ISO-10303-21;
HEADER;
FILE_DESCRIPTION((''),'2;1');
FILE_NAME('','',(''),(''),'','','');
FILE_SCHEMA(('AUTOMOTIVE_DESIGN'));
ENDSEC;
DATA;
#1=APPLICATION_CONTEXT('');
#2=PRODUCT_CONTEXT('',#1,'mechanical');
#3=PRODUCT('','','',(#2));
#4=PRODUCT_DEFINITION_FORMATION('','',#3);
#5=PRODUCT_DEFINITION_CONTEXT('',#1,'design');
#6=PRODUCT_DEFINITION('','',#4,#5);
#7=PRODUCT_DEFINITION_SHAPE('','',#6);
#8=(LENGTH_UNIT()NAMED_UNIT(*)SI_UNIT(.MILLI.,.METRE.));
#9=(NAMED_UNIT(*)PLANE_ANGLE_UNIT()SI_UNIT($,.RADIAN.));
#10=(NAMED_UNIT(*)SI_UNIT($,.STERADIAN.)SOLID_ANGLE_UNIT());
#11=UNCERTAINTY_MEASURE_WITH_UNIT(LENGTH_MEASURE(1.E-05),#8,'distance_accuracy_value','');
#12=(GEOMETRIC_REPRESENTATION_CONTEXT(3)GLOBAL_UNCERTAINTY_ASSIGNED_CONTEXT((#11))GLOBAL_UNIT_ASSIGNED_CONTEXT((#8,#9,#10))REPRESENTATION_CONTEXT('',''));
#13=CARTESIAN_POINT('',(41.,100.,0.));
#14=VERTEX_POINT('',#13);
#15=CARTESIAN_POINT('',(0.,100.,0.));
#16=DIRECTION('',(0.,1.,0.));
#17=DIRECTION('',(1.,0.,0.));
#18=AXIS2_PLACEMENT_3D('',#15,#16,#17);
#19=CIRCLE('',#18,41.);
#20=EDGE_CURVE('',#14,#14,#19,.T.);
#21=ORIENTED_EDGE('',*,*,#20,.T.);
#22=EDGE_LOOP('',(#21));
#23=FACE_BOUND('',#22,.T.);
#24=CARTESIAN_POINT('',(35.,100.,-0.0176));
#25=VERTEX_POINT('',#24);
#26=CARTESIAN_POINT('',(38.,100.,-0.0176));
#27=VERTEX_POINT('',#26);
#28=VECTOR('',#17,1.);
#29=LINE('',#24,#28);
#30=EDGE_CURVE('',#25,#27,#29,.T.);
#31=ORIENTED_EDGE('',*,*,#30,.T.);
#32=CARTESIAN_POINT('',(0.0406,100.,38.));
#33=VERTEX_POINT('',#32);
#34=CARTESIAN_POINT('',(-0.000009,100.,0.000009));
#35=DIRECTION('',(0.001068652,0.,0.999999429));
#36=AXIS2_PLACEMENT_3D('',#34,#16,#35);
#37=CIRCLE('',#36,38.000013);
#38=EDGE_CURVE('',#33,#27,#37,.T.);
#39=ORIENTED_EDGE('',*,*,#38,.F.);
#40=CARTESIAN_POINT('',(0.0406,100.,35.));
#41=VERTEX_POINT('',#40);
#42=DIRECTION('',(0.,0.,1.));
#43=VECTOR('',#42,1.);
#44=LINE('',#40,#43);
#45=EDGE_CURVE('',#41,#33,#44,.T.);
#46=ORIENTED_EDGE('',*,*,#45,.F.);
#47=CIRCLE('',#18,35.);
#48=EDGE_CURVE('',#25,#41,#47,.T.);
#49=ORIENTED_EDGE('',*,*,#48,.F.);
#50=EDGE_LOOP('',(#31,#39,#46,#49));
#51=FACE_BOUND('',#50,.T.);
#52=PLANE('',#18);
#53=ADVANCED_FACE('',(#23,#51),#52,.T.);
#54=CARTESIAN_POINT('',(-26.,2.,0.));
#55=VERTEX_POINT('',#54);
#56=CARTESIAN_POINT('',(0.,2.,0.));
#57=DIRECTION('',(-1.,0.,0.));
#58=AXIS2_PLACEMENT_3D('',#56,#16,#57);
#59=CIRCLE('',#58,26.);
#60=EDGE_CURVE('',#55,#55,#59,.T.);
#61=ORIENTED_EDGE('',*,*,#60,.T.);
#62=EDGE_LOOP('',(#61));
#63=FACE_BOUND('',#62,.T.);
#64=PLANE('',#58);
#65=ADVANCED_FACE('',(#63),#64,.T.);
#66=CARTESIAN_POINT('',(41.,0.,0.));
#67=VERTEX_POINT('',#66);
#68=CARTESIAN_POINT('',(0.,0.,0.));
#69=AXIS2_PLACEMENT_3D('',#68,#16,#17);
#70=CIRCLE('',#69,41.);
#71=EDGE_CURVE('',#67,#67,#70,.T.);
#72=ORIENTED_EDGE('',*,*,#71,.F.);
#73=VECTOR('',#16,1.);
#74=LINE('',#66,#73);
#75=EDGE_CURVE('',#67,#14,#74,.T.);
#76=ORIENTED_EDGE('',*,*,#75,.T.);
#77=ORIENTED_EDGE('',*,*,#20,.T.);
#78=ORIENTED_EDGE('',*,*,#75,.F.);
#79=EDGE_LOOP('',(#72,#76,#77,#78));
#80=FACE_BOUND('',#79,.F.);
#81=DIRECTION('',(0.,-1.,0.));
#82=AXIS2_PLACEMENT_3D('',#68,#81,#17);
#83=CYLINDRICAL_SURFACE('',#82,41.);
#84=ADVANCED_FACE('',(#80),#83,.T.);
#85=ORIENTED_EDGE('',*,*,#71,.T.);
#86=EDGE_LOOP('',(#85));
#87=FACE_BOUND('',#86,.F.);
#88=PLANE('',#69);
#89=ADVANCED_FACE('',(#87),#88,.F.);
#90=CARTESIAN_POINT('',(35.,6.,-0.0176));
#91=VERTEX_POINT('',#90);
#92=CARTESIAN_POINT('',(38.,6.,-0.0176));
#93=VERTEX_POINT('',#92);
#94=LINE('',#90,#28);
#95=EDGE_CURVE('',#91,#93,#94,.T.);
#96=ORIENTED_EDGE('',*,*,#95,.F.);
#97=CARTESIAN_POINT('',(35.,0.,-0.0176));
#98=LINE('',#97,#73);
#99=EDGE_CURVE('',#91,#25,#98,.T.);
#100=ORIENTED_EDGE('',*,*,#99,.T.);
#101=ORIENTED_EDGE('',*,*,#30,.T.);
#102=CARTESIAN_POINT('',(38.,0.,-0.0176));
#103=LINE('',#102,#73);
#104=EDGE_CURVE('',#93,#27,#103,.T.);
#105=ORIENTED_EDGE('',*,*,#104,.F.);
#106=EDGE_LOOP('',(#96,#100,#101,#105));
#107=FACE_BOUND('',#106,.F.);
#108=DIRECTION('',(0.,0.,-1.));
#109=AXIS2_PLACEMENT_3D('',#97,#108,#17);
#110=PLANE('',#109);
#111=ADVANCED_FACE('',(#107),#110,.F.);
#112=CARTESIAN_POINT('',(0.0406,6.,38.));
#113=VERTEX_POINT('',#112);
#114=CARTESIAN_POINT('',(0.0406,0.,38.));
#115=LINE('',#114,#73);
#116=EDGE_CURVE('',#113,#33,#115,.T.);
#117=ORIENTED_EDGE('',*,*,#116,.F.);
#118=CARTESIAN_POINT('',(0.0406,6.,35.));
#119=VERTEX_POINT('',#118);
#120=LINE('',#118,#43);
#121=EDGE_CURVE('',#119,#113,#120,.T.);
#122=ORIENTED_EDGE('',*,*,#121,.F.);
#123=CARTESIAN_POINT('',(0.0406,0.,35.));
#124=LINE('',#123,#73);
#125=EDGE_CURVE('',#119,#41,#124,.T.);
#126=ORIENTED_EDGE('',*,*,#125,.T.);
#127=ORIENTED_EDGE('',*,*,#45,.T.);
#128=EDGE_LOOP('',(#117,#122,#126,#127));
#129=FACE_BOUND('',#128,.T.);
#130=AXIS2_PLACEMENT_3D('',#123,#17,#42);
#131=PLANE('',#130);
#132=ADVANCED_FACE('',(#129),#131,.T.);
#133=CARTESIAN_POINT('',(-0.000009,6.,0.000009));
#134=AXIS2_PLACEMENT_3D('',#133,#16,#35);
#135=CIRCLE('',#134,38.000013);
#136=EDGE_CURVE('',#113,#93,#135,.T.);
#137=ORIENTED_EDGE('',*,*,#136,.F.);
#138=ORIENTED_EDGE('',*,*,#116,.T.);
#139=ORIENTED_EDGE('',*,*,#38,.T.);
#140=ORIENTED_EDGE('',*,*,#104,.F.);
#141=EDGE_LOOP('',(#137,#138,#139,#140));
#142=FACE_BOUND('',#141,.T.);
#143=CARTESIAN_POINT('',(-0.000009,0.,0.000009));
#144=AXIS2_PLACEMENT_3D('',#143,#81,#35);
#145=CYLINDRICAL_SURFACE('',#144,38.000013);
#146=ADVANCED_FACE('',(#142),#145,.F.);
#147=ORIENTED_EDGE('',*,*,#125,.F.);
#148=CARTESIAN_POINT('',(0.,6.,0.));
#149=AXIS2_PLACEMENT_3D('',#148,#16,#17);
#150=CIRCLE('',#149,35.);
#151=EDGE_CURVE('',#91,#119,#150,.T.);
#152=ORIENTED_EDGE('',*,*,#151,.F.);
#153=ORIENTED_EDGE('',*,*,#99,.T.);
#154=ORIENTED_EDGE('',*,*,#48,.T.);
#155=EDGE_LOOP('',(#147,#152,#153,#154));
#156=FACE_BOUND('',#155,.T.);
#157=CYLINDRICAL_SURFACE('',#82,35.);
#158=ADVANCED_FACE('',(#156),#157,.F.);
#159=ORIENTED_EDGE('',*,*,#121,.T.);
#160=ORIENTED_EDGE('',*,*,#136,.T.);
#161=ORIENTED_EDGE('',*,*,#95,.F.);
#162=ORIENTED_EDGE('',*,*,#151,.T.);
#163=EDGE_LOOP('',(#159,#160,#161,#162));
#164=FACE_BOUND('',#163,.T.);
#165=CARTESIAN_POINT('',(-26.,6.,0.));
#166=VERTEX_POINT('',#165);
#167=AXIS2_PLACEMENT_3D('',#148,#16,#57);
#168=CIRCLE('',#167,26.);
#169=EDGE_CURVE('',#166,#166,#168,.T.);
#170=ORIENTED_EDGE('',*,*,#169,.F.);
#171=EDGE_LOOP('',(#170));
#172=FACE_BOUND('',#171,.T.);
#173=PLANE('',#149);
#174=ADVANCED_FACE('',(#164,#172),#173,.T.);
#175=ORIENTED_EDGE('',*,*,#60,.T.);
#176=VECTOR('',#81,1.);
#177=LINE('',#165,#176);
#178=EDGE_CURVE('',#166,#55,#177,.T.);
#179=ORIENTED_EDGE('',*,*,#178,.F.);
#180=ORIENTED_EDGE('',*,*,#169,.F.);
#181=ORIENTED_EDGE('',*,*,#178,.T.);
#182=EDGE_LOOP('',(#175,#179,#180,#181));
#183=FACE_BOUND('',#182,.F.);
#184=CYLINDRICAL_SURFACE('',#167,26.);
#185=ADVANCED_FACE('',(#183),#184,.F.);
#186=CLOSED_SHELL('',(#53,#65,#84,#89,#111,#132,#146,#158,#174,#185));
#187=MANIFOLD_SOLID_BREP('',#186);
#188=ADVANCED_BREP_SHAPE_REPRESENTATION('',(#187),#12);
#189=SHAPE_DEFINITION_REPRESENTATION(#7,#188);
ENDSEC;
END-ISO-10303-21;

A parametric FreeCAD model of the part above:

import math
import FreeCAD as App
import Part
import Sketcher

V = App.Vector

doc = App.newDocument("Part")
body = doc.addObject("PartDesign::Body", "Body")

sketch1 = body.newObject("Sketcher::SketchObject", "Sketch")
sketch1.AttachmentSupport = (doc.getObject("XZ_Plane"), [""])
sketch1.MapMode = "FlatFace"
sketch1.addGeometry(Part.Circle(V(0, 0, 0), V(0, 0, 1), 41), False)
sketch1.addGeometry(Part.ArcOfCircle(Part.Circle(V(0, 0, 0), V(0, 0, 1), 35), math.radians(89.933537), math.radians(359.971188)), False)
sketch1.addGeometry(Part.LineSegment(V(35, -0.0176, 0), V(38, -0.0176, 0)), False)
sketch1.addGeometry(Part.ArcOfCircle(Part.Circle(V(0, 0, 0), V(0, 0, 1), 38.000022), math.radians(-0.026537), math.radians(89.938784)), False)
sketch1.addGeometry(Part.LineSegment(V(0.0406, 38, 0), V(0.0406, 35, 0)), False)
sketch1.addConstraint(Sketcher.Constraint("Coincident", 1, 2, 2, 1))
sketch1.addConstraint(Sketcher.Constraint("Coincident", 2, 2, 3, 1))
sketch1.addConstraint(Sketcher.Constraint("Coincident", 3, 2, 4, 1))
sketch1.addConstraint(Sketcher.Constraint("Coincident", 4, 2, 1, 1))
sketch1.addConstraint(Sketcher.Constraint("Horizontal", 2))
sketch1.addConstraint(Sketcher.Constraint("Vertical", 4))
sketch1.addConstraint(Sketcher.Constraint("Coincident", 0, 3, -1, 1))
sketch1.addConstraint(Sketcher.Constraint("Coincident", 1, 3, -1, 1))
sketch1.addConstraint(Sketcher.Constraint("Coincident", 3, 3, -1, 1))
sketch1.addConstraint(Sketcher.Constraint("Diameter", 0, 82.0))
sketch1.addConstraint(Sketcher.Constraint("Radius", 1, 35.0))
sketch1.addConstraint(Sketcher.Constraint("Radius", 3, 38.0))
sketch1.addConstraint(Sketcher.Constraint("DistanceY", 1, 2, -1, 1, 0.0176))
sketch1.addConstraint(Sketcher.Constraint("DistanceX", -1, 1, 3, 2, 0.0406))
pad1 = body.newObject("PartDesign::Pad", "Pad")
pad1.Profile = sketch1
pad1.Length = 100
pad1.Reversed = True

sketch2 = body.newObject("Sketcher::SketchObject", "Sketch001")
sketch2.AttachmentSupport = (doc.getObject("XZ_Plane"), [""])
sketch2.MapMode = "FlatFace"
sketch2.addGeometry(Part.Circle(V(0, 0, 0), V(0, 0, 1), 35), False)
sketch2.addConstraint(Sketcher.Constraint("Coincident", 0, 3, -1, 1))
sketch2.addConstraint(Sketcher.Constraint("Diameter", 0, 70.0))
pad2 = body.newObject("PartDesign::Pad", "Pad001")
pad2.Profile = sketch2
pad2.Length = 6
pad2.Reversed = True

sketch3 = body.newObject("Sketcher::SketchObject", "Sketch002")
sketch3.AttachmentSupport = (doc.getObject("XZ_Plane"), [""])
sketch3.MapMode = "FlatFace"
sketch3.addGeometry(Part.ArcOfCircle(Part.Circle(V(0, 0, 0), V(0, 0, 1), 35), math.radians(-0.028812), math.radians(89.933537)), False)
sketch3.addGeometry(Part.LineSegment(V(0.0406, 35, 0), V(0.0406, 38, 0)), False)
sketch3.addGeometry(Part.ArcOfCircle(Part.Circle(V(0, 0, 0), V(0, 0, 1), 38.000022), math.radians(-0.026537), math.radians(89.938784)), False)
sketch3.addGeometry(Part.LineSegment(V(38, -0.0176, 0), V(35, -0.0176, 0)), False)
sketch3.addConstraint(Sketcher.Constraint("Coincident", 0, 2, 1, 1))
sketch3.addConstraint(Sketcher.Constraint("Coincident", 1, 2, 2, 2))
sketch3.addConstraint(Sketcher.Constraint("Coincident", 2, 1, 3, 1))
sketch3.addConstraint(Sketcher.Constraint("Coincident", 3, 2, 0, 1))
sketch3.addConstraint(Sketcher.Constraint("Vertical", 1))
sketch3.addConstraint(Sketcher.Constraint("Horizontal", 3))
sketch3.addConstraint(Sketcher.Constraint("Coincident", 0, 3, -1, 1))
sketch3.addConstraint(Sketcher.Constraint("Coincident", 2, 3, -1, 1))
sketch3.addConstraint(Sketcher.Constraint("Radius", 0, 35.0))
sketch3.addConstraint(Sketcher.Constraint("Radius", 2, 38.0))
sketch3.addConstraint(Sketcher.Constraint("DistanceX", -1, 1, 0, 2, 0.0406))
sketch3.addConstraint(Sketcher.Constraint("DistanceY", 2, 1, -1, 1, 0.0176))
pad3 = body.newObject("PartDesign::Pad", "Pad002")
pad3.Profile = sketch3
pad3.Length = 6
pad3.Reversed = True

sketch4 = body.newObject("Sketcher::SketchObject", "Sketch003")
sketch4.AttachmentSupport = (doc.getObject("XZ_Plane"), [""])
sketch4.MapMode = "FlatFace"
sketch4.AttachmentOffset = App.Placement(V(0, 0, -6), App.Rotation())
sketch4.addGeometry(Part.Circle(V(0, 0, 0), V(0, 0, 1), 26), False)
sketch4.addConstraint(Sketcher.Constraint("Coincident", 0, 3, -1, 1))
sketch4.addConstraint(Sketcher.Constraint("Diameter", 0, 52.0))
pocket1 = body.newObject("PartDesign::Pocket", "Pocket")
pocket1.Profile = sketch4
pocket1.Length = 4
pocket1.Reversed = True

doc.recompute()
